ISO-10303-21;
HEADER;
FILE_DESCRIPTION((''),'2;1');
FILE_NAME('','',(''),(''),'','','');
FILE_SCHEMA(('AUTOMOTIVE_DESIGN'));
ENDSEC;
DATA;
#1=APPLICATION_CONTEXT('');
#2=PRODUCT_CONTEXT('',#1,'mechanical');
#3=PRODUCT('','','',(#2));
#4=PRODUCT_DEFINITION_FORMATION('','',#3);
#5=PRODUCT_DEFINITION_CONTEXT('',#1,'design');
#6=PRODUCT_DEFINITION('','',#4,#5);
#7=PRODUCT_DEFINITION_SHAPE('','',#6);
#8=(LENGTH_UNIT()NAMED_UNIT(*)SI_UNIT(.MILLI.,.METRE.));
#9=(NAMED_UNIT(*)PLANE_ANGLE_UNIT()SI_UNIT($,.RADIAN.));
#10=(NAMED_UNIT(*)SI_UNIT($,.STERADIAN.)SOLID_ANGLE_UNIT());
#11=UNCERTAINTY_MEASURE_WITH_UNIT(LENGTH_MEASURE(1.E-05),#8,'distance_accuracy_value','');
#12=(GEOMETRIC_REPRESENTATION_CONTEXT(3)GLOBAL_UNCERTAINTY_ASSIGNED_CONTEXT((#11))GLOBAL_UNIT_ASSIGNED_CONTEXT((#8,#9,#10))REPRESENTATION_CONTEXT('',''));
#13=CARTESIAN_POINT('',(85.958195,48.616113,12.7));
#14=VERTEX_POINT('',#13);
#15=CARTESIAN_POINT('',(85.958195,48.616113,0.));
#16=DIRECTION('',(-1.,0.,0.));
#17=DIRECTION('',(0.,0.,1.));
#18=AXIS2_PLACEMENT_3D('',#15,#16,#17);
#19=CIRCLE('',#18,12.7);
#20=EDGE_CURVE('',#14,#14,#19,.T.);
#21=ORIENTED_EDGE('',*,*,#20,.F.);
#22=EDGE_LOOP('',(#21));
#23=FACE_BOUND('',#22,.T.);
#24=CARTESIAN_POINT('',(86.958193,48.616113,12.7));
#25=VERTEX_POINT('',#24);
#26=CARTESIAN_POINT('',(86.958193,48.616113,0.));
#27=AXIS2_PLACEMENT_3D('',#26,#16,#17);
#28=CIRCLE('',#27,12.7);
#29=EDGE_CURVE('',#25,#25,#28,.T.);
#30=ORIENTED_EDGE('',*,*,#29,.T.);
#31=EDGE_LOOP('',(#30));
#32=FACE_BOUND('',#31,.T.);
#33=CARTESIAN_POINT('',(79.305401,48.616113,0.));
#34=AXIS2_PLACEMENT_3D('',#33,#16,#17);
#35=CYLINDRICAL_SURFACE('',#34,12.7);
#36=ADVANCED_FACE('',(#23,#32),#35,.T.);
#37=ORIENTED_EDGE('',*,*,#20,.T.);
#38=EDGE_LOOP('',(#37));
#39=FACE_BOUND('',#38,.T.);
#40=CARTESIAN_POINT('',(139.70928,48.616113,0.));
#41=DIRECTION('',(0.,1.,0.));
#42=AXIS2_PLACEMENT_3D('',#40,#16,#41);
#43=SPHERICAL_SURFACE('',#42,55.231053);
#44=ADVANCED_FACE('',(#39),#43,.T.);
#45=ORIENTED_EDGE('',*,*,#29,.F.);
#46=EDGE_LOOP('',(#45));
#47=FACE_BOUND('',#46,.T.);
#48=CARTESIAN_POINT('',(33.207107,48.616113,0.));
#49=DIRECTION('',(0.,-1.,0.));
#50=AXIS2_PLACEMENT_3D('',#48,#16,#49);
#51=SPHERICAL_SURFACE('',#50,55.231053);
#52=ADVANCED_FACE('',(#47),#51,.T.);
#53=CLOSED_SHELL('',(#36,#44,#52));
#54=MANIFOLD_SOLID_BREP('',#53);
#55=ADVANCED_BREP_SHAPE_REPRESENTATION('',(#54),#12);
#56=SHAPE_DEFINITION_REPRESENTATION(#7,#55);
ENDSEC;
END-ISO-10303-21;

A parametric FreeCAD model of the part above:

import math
import FreeCAD as App
import Part
import Sketcher
from FreeCAD import Vector
Q = App.Units.Quantity

doc = App.newDocument("Part")
body = doc.addObject("PartDesign::Body", "Body")

# Sketch on XY plane
sketch1 = body.newObject("Sketcher::SketchObject", "Sketch")
sketch1.AttachmentSupport = (doc.getObject("XY_Plane"), [""])
sketch1.MapMode = "FlatFace"
sketch1.addGeometry(Part.LineSegment(Vector(86.958193, 61.316113, 0), Vector(85.958195, 61.316113, 0)), False)
sketch1.addGeometry(Part.ArcOfCircle(Part.Circle(Vector(139.70928, 48.616113, 0), Vector(0, 0, 1), 55.231053), math.radians(166.706278), math.radians(180)), False)
sketch1.addGeometry(Part.LineSegment(Vector(84.478227, 48.616113, 0), Vector(88.43816, 48.616113, 0)), False)
sketch1.addGeometry(Part.ArcOfCircle(Part.Circle(Vector(33.207107, 48.616113, 0), Vector(0, 0, 1), 55.231053), math.radians(0), math.radians(13.293722)), False)
sketch1.addGeometry(Part.LineSegment(Vector(33.207107, 48.616113, 0), Vector(139.70928, 48.616113, 0)), True)  # axis
sketch1.addConstraint(Sketcher.Constraint("Coincident", 0, 2, 1, 1))
sketch1.addConstraint(Sketcher.Constraint("Coincident", 1, 2, 2, 1))
sketch1.addConstraint(Sketcher.Constraint("Coincident", 2, 2, 3, 1))
sketch1.addConstraint(Sketcher.Constraint("Coincident", 3, 2, 0, 1))
sketch1.addConstraint(Sketcher.Constraint("Horizontal", 0))
sketch1.addConstraint(Sketcher.Constraint("Horizontal", 2))
sketch1.addConstraint(Sketcher.Constraint("Horizontal", 4))
sketch1.addConstraint(Sketcher.Constraint("Coincident", 4, 1, 3, 3))
sketch1.addConstraint(Sketcher.Constraint("Coincident", 4, 2, 1, 3))
sketch1.addConstraint(Sketcher.Constraint("Equal", 1, 3))
sketch1.addConstraint(Sketcher.Constraint("Horizontal", 3, 3, 1, 2))
sketch1.addConstraint(Sketcher.Constraint("DistanceX", 0, 2, 0, 1, Q("0.999998 mm")))
sketch1.addConstraint(Sketcher.Constraint("DistanceY", 3, 3, 0, 2, Q("12.7 mm")))
sketch1.addConstraint(Sketcher.Constraint("Radius", 1, Q("55.231053 mm")))
sketch1.addConstraint(Sketcher.Constraint("DistanceX", -1, 1, 1, 3, Q("139.70928 mm")))
sketch1.addConstraint(Sketcher.Constraint("DistanceY", -1, 1, 1, 3, Q("48.616113 mm")))
revolution = body.newObject("PartDesign::Revolution", "Revolution")
revolution.Profile = sketch1
revolution.ReferenceAxis = (sketch1, ["Axis0"])
revolution.Angle = 360

doc.recompute()
